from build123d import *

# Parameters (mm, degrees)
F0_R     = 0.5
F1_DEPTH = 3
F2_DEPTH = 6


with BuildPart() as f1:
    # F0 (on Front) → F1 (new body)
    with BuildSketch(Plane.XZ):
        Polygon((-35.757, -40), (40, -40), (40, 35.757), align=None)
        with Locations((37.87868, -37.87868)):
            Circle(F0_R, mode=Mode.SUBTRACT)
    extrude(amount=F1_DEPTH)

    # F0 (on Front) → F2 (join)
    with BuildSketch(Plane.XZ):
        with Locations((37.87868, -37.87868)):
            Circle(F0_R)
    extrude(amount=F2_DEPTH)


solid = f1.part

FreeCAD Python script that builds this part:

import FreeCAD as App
import Part
import Sketcher
from FreeCAD import Vector
Q = App.Units.Quantity


def add_polygon(sketch, points):
    """Adds a closed chain of lines whose ends are joined by coincident constraints."""
    first, n = sketch.GeometryCount, len(points)
    for a, b in zip(points, points[1:] + points[:1]):
        sketch.addGeometry(Part.LineSegment(App.Vector(*a, 0), App.Vector(*b, 0)), False)
    for i in range(n):
        sketch.addConstraint(Sketcher.Constraint("Coincident", first + i, 2, first + (i + 1) % n, 1))

doc = App.newDocument("Part")
body = doc.addObject("PartDesign::Body", "Body")

# Sketch on XZ plane
sketch1 = doc.addObject("Sketcher::SketchObject", "Sketch")
body.addObject(sketch1)
sketch1.AttachmentSupport = (doc.XZ_Plane, [""])
sketch1.MapMode = "FlatFace"
add_polygon(sketch1, [(-35.8, -40), (40, -40), (40, 35.8)])  # lines 0-2
sketch1.addGeometry(Part.Circle(Vector(37.9, -37.9, 0), Vector(0, 0, 1), 0.5), False)  # 3
sketch1.addConstraint([
    Sketcher.Constraint("Horizontal", 0),
    Sketcher.Constraint("Vertical", 1),
    Sketcher.Constraint("Equal", 0, 1),
    Sketcher.Constraint("Diameter", 3, Q("1 mm")),
    Sketcher.Constraint("DistanceX", -1, 1, 0, 2, Q("40 mm")),
    Sketcher.Constraint("DistanceY", 0, 2, -1, 1, Q("40 mm")),
    Sketcher.Constraint("DistanceX", 0, 1, 0, 2, Q("75.757 mm")),
    Sketcher.Constraint("DistanceX", -1, 1, 3, 3, Q("37.87868 mm")),
    Sketcher.Constraint("DistanceY", 3, 3, -1, 1, Q("37.87868 mm")),
])
pad1 = doc.addObject("PartDesign::Pad", "Pad")
body.addObject(pad1)
pad1.Profile = sketch1
pad1.Length = 3

# Sketch on XZ plane
sketch2 = doc.addObject("Sketcher::SketchObject", "Sketch001")
body.addObject(sketch2)
sketch2.AttachmentSupport = (doc.XZ_Plane, [""])
sketch2.MapMode = "FlatFace"
sketch2.addGeometry(Part.Circle(Vector(37.9, -37.9, 0), Vector(0, 0, 1), 0.5), False)
sketch2.addConstraint([
    Sketcher.Constraint("Diameter", 0, Q("1 mm")),
    Sketcher.Constraint("DistanceX", -1, 1, 0, 3, Q("37.87868 mm")),
    Sketcher.Constraint("DistanceY", 0, 3, -1, 1, Q("37.87868 mm")),
])
pad2 = doc.addObject("PartDesign::Pad", "Pad001")
body.addObject(pad2)
pad2.Profile = sketch2
pad2.Length = 6

doc.recompute()
